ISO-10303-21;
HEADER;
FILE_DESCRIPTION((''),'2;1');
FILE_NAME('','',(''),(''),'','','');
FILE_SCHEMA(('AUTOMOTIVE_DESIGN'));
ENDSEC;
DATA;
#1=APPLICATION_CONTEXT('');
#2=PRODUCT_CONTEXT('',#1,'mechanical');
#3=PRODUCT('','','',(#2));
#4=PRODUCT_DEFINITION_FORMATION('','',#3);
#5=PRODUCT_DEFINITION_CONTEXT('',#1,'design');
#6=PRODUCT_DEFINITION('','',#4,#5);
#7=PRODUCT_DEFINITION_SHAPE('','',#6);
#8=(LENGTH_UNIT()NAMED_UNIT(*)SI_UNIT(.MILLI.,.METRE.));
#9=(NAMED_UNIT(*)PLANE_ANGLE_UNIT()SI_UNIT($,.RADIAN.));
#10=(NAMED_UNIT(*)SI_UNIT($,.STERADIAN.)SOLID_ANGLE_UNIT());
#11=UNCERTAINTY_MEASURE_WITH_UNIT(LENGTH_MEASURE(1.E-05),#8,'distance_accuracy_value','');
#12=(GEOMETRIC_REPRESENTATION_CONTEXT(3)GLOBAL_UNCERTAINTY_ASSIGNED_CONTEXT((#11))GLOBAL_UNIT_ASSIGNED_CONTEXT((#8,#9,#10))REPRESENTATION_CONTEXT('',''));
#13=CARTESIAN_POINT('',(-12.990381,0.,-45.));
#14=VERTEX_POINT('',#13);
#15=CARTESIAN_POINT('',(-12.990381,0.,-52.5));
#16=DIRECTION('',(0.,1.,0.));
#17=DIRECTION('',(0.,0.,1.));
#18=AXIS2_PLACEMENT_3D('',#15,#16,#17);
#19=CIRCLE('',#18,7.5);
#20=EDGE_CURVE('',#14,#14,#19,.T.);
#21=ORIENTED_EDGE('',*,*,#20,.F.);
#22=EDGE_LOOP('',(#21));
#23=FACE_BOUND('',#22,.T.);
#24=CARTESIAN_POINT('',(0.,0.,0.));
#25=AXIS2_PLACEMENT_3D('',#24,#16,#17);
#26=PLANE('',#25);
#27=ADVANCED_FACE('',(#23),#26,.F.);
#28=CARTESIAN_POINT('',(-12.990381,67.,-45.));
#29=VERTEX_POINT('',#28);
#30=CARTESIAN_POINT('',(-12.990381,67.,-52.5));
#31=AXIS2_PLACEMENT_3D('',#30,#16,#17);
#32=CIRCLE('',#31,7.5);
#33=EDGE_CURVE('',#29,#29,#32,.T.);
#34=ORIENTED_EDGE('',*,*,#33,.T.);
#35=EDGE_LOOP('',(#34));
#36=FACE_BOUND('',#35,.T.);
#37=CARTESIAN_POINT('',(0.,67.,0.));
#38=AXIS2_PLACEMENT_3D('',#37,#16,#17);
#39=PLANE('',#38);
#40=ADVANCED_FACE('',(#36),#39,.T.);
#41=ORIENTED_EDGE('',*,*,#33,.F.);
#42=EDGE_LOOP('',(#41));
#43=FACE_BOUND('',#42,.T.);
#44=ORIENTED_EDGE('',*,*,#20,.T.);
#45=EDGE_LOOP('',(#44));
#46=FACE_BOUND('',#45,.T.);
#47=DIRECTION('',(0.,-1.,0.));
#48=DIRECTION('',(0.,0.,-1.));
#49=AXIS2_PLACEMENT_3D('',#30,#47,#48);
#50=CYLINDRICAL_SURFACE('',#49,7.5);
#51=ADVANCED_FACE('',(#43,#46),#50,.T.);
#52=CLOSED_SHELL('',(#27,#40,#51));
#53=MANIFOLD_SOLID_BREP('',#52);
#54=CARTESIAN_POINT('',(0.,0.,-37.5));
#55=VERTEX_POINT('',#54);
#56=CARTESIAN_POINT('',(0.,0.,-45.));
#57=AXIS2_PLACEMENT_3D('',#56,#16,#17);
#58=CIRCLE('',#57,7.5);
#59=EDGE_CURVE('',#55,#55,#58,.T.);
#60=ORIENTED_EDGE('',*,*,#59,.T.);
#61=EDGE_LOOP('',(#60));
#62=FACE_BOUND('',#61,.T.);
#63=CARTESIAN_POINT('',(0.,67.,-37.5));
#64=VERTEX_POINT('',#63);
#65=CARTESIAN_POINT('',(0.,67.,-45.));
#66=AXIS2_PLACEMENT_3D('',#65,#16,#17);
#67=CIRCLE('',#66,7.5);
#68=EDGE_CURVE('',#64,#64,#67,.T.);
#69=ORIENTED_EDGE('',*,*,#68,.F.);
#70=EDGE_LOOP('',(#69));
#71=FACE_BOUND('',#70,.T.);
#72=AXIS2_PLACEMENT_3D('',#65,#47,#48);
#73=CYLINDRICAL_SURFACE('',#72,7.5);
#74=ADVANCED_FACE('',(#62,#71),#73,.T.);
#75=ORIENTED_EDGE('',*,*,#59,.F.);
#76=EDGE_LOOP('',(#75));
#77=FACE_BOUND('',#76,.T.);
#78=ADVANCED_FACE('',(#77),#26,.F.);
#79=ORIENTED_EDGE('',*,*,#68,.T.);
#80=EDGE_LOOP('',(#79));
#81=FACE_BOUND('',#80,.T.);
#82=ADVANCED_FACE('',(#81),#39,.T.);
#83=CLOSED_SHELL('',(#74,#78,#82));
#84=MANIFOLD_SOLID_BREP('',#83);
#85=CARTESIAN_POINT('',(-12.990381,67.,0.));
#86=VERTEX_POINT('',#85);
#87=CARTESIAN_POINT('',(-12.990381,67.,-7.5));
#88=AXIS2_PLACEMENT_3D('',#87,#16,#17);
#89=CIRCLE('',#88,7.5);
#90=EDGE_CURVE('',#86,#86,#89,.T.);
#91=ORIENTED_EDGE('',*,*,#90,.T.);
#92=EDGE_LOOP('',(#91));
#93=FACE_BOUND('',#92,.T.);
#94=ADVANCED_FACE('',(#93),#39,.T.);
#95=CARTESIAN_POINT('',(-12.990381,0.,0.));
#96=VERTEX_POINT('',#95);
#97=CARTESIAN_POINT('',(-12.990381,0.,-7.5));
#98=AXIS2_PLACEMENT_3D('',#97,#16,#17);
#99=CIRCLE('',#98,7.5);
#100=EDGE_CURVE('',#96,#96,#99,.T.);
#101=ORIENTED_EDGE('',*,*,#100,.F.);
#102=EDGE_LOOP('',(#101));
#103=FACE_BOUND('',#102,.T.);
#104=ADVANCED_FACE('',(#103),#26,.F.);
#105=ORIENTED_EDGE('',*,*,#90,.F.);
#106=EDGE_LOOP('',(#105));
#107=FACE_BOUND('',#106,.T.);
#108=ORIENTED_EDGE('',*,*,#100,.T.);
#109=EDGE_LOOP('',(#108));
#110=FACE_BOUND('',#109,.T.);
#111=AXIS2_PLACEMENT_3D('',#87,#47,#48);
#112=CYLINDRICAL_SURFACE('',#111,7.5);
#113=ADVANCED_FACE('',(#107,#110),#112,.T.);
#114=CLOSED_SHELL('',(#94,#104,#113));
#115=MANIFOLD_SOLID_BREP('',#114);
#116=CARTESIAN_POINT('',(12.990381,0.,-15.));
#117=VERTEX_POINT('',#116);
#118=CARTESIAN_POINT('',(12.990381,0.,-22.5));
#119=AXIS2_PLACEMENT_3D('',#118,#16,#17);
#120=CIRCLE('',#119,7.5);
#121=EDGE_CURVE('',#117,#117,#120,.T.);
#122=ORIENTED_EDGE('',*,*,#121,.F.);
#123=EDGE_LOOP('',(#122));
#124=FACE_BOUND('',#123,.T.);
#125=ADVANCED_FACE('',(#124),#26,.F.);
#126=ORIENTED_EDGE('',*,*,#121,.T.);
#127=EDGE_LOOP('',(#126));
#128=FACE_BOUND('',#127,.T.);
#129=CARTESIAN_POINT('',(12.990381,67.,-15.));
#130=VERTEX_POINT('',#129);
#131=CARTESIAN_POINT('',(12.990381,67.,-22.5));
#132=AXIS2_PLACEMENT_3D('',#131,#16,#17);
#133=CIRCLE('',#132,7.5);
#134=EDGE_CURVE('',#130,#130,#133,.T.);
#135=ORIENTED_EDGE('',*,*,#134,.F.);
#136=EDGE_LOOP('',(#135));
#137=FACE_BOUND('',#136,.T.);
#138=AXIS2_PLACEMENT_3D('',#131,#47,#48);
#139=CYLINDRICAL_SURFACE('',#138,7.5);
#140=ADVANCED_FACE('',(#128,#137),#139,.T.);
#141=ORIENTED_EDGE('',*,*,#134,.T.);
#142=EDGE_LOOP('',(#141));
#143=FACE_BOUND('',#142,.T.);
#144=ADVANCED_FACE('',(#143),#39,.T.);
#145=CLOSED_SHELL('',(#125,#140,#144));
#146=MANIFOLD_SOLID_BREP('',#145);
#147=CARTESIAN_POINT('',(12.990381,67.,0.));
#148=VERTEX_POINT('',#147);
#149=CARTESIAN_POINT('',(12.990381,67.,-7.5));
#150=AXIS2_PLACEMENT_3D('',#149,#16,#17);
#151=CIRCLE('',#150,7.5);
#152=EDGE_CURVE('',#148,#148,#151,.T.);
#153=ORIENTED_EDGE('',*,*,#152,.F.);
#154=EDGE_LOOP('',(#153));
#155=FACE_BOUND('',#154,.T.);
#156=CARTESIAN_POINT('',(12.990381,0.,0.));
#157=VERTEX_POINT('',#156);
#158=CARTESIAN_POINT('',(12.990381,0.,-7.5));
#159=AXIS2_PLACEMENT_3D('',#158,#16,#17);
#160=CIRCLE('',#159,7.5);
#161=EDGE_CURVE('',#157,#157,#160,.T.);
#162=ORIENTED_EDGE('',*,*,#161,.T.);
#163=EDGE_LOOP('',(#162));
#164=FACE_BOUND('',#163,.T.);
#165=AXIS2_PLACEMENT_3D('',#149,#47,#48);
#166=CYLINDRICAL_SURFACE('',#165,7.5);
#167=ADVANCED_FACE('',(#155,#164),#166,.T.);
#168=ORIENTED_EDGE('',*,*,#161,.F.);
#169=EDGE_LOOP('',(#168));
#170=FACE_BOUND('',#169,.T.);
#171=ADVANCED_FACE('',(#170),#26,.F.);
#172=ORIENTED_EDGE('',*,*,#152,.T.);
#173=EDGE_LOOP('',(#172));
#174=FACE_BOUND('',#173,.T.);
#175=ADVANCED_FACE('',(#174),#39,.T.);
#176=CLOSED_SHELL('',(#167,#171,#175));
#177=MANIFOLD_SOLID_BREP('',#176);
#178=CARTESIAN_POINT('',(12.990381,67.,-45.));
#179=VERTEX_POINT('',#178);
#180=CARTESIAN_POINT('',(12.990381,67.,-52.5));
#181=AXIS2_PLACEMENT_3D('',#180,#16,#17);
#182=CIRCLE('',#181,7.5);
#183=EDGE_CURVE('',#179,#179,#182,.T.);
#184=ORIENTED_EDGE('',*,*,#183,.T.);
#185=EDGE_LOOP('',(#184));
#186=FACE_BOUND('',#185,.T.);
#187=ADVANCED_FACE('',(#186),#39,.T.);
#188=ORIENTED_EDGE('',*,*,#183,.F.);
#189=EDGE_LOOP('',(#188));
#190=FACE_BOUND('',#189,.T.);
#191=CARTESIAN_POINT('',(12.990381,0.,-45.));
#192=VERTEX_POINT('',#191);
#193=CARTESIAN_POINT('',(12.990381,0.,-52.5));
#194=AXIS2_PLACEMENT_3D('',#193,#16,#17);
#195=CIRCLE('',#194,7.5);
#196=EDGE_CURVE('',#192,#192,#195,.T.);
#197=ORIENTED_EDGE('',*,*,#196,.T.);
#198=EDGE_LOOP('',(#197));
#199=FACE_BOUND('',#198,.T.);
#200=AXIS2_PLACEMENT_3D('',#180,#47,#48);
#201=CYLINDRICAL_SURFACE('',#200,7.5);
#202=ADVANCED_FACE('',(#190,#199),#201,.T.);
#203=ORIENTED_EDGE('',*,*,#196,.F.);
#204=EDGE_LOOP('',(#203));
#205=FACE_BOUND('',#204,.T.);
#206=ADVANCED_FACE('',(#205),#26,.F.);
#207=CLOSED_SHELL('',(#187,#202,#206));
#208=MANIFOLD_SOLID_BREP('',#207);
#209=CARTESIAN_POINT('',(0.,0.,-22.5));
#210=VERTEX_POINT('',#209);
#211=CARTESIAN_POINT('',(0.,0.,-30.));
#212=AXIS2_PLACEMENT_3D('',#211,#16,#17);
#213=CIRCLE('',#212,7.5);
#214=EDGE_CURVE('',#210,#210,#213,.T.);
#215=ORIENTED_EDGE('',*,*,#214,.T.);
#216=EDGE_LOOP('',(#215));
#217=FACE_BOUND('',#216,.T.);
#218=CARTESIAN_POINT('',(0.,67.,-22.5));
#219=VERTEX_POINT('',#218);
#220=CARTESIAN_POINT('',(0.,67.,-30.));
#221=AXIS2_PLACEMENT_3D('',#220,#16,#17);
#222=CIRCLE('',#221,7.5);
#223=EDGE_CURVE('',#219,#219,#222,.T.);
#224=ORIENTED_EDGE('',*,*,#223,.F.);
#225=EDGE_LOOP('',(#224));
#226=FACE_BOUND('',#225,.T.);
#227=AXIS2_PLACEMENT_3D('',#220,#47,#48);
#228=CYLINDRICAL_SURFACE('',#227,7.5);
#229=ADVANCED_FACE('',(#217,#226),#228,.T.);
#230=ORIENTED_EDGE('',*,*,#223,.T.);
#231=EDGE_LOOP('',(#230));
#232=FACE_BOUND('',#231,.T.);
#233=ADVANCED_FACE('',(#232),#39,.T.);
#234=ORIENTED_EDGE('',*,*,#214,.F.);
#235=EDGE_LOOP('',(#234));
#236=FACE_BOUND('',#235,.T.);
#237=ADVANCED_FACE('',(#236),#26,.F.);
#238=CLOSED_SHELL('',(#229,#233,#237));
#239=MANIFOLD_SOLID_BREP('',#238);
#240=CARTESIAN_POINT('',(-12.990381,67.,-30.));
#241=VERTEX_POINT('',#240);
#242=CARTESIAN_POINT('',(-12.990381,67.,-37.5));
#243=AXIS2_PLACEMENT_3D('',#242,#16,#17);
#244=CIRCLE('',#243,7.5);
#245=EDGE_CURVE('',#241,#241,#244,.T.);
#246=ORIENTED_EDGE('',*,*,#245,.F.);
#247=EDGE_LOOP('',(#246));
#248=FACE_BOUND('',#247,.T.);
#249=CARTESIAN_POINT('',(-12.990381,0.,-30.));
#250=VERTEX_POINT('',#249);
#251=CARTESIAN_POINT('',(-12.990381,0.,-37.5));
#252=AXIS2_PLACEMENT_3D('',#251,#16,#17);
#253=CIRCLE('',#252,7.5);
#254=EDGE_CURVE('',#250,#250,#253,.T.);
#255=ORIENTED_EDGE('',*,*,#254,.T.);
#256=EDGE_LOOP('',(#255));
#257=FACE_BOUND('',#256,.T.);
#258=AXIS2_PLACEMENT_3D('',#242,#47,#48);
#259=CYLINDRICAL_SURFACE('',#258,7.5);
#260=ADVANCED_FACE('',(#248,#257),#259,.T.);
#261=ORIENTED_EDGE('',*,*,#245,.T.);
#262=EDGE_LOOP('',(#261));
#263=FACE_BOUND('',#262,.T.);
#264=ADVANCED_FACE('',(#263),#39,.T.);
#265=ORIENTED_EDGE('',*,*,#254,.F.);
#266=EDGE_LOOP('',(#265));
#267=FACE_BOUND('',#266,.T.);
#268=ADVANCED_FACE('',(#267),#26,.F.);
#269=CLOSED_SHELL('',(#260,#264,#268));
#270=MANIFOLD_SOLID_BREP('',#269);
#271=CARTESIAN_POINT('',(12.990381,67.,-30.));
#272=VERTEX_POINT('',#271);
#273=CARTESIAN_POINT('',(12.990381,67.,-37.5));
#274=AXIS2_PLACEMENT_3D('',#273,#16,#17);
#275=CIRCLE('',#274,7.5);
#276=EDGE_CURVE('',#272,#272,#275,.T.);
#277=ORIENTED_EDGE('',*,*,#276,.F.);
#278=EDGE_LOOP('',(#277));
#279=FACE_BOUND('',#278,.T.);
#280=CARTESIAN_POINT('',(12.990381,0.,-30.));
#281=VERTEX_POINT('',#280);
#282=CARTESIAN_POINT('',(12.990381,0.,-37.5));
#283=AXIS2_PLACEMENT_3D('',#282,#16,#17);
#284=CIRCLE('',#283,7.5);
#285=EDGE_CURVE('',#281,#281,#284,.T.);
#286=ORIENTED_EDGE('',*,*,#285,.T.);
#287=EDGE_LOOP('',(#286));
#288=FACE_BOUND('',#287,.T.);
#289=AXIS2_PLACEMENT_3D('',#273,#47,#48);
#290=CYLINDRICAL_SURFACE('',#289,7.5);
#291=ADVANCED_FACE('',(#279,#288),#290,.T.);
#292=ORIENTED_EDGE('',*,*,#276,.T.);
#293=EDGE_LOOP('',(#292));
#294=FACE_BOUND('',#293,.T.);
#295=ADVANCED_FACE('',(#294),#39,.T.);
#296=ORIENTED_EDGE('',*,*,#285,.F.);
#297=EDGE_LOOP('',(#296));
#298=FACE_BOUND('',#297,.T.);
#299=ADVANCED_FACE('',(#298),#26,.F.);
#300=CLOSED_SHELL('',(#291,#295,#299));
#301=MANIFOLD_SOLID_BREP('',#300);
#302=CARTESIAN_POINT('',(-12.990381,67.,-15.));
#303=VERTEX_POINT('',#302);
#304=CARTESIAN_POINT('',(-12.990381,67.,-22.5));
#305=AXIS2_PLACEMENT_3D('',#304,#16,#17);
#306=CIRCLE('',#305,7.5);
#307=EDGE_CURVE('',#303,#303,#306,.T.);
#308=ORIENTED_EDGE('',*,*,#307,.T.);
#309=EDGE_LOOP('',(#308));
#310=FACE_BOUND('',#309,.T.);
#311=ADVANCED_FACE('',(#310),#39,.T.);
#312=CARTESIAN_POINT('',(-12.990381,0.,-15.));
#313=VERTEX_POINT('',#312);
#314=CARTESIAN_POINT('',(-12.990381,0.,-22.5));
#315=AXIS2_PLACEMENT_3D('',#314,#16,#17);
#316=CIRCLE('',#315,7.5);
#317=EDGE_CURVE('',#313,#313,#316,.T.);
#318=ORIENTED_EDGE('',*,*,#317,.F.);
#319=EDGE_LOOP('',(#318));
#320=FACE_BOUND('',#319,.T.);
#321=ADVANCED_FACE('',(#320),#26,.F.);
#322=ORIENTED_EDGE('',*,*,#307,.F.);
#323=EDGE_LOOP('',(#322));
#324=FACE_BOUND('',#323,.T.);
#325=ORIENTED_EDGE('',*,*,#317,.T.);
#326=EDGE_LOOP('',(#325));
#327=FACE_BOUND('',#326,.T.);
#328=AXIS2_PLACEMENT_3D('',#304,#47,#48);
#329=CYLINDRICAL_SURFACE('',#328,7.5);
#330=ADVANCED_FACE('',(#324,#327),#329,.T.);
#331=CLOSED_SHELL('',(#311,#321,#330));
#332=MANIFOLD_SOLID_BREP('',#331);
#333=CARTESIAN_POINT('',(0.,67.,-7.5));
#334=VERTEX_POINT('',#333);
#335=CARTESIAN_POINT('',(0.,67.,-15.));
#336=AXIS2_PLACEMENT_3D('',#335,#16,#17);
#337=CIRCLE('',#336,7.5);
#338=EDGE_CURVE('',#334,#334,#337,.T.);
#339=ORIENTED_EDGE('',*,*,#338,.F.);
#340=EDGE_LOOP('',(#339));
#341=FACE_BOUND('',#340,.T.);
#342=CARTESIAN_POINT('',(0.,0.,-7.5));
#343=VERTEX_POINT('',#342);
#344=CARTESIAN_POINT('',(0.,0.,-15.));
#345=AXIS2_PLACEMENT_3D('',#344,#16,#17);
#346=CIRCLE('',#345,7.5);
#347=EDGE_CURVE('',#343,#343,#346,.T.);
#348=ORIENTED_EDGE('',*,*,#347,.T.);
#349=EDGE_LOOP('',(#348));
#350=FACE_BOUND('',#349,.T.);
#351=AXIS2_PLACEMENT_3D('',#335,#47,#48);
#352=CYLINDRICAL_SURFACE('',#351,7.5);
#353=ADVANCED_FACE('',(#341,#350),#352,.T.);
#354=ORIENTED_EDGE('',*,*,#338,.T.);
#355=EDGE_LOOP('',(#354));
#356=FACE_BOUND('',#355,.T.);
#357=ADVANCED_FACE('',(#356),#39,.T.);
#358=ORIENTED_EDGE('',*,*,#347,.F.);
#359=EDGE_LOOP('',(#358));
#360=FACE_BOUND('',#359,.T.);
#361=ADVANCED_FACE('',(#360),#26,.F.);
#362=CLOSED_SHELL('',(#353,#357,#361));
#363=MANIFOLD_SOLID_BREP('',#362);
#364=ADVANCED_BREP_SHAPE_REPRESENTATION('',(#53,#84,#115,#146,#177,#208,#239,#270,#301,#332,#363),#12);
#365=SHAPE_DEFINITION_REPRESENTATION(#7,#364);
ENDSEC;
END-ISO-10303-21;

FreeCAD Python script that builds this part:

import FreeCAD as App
import Part
import Sketcher

doc = App.newDocument("Part")
body = doc.addObject("PartDesign::Body", "Body")

sketch1 = body.newObject("Sketcher::SketchObject", "Sketch")
sketch1.AttachmentSupport = (doc.getObject("XZ_Plane"), [""])
sketch1.MapMode = "FlatFace"
sketch1.addGeometry(Part.Circle(App.Vector(0, -30, 0), App.Vector(0, 0, 1), 8), False)
sketch1.addConstraint([
    Sketcher.Constraint("PointOnObject", 0, 3, -2),
    Sketcher.Constraint("Diameter", 0, 15.0),
    Sketcher.Constraint("DistanceY", 0, 3, -1, 1, 30.0),
])
pad1 = body.newObject("PartDesign::Pad", "Pad")
pad1.Profile = sketch1
pad1.Length = 67
pad1.Reversed = True
body2 = doc.addObject("PartDesign::Body", "Body001")

sketch2 = body2.newObject("Sketcher::SketchObject", "Sketch001")
sketch2.AttachmentSupport = (doc.getObject("XZ_Plane001"), [""])
sketch2.MapMode = "FlatFace"
sketch2.addGeometry(Part.Circle(App.Vector(0, -45, 0), App.Vector(0, 0, 1), 8), False)
sketch2.addConstraint([
    Sketcher.Constraint("PointOnObject", 0, 3, -2),
    Sketcher.Constraint("Diameter", 0, 15.0),
    Sketcher.Constraint("DistanceY", 0, 3, -1, 1, 45.0),
])
pad2 = body2.newObject("PartDesign::Pad", "Pad001")
pad2.Profile = sketch2
pad2.Length = 67
pad2.Reversed = True
body3 = doc.addObject("PartDesign::Body", "Body002")

sketch3 = body3.newObject("Sketcher::SketchObject", "Sketch002")
sketch3.AttachmentSupport = (doc.getObject("XZ_Plane002"), [""])
sketch3.MapMode = "FlatFace"
sketch3.addGeometry(Part.Circle(App.Vector(0, -15, 0), App.Vector(0, 0, 1), 8), False)
sketch3.addConstraint([
    Sketcher.Constraint("PointOnObject", 0, 3, -2),
    Sketcher.Constraint("Diameter", 0, 15.0),
    Sketcher.Constraint("DistanceY", 0, 3, -1, 1, 15.0),
])
pad3 = body3.newObject("PartDesign::Pad", "Pad002")
pad3.Profile = sketch3
pad3.Length = 67
pad3.Reversed = True
body4 = doc.addObject("PartDesign::Body", "Body003")

sketch4 = body4.newObject("Sketcher::SketchObject", "Sketch003")
sketch4.AttachmentSupport = (doc.getObject("XZ_Plane003"), [""])
sketch4.MapMode = "FlatFace"
sketch4.addGeometry(Part.Circle(App.Vector(-13, -8, 0), App.Vector(0, 0, 1), 8), False)
sketch4.addConstraint([
    Sketcher.Constraint("Diameter", 0, 15.0),
    Sketcher.Constraint("DistanceY", 0, 3, -1, 1, 7.5),
    Sketcher.Constraint("DistanceX", 0, 3, -1, 1, 12.990381),
])
pad4 = body4.newObject("PartDesign::Pad", "Pad003")
pad4.Profile = sketch4
pad4.Length = 67
pad4.Reversed = True
body5 = doc.addObject("PartDesign::Body", "Body004")

sketch5 = body5.newObject("Sketcher::SketchObject", "Sketch004")
sketch5.AttachmentSupport = (doc.getObject("XZ_Plane004"), [""])
sketch5.MapMode = "FlatFace"
sketch5.addGeometry(Part.Circle(App.Vector(-13, -22, 0), App.Vector(0, 0, 1), 8), False)
sketch5.addConstraint([
    Sketcher.Constraint("Diameter", 0, 15.0),
    Sketcher.Constraint("DistanceY", 0, 3, -1, 1, 22.5),
    Sketcher.Constraint("DistanceX", 0, 3, -1, 1, 12.990381),
])
pad5 = body5.newObject("PartDesign::Pad", "Pad004")
pad5.Profile = sketch5
pad5.Length = 67
pad5.Reversed = True
body6 = doc.addObject("PartDesign::Body", "Body005")

sketch6 = body6.newObject("Sketcher::SketchObject", "Sketch005")
sketch6.AttachmentSupport = (doc.getObject("XZ_Plane005"), [""])
sketch6.MapMode = "FlatFace"
sketch6.addGeometry(Part.Circle(App.Vector(-13, -38, 0), App.Vector(0, 0, 1), 8), False)
sketch6.addConstraint([
    Sketcher.Constraint("Diameter", 0, 15.0),
    Sketcher.Constraint("DistanceY", 0, 3, -1, 1, 37.5),
    Sketcher.Constraint("DistanceX", 0, 3, -1, 1, 12.990381),
])
pad6 = body6.newObject("PartDesign::Pad", "Pad005")
pad6.Profile = sketch6
pad6.Length = 67
pad6.Reversed = True
body7 = doc.addObject("PartDesign::Body", "Body006")

sketch7 = body7.newObject("Sketcher::SketchObject", "Sketch006")
sketch7.AttachmentSupport = (doc.getObject("XZ_Plane006"), [""])
sketch7.MapMode = "FlatFace"
sketch7.addGeometry(Part.Circle(App.Vector(-13, -52, 0), App.Vector(0, 0, 1), 8), False)
sketch7.addConstraint([
    Sketcher.Constraint("Diameter", 0, 15.0),
    Sketcher.Constraint("DistanceY", 0, 3, -1, 1, 52.5),
    Sketcher.Constraint("DistanceX", 0, 3, -1, 1, 12.990381),
])
pad7 = body7.newObject("PartDesign::Pad", "Pad006")
pad7.Profile = sketch7
pad7.Length = 67
pad7.Reversed = True
body8 = doc.addObject("PartDesign::Body", "Body007")

sketch8 = body8.newObject("Sketcher::SketchObject", "Sketch007")
sketch8.AttachmentSupport = (doc.getObject("XZ_Plane007"), [""])
sketch8.MapMode = "FlatFace"
sketch8.addGeometry(Part.Circle(App.Vector(13, -8, 0), App.Vector(0, 0, 1), 8), False)
sketch8.addConstraint([
    Sketcher.Constraint("Diameter", 0, 15.0),
    Sketcher.Constraint("DistanceY", 0, 3, -1, 1, 7.5),
    Sketcher.Constraint("DistanceX", -1, 1, 0, 3, 12.990381),
])
pad8 = body8.newObject("PartDesign::Pad", "Pad007")
pad8.Profile = sketch8
pad8.Length = 67
pad8.Reversed = True
body9 = doc.addObject("PartDesign::Body", "Body008")

sketch9 = body9.newObject("Sketcher::SketchObject", "Sketch008")
sketch9.AttachmentSupport = (doc.getObject("XZ_Plane008"), [""])
sketch9.MapMode = "FlatFace"
sketch9.addGeometry(Part.Circle(App.Vector(13, -22, 0), App.Vector(0, 0, 1), 8), False)
sketch9.addConstraint([
    Sketcher.Constraint("Diameter", 0, 15.0),
    Sketcher.Constraint("DistanceY", 0, 3, -1, 1, 22.5),
    Sketcher.Constraint("DistanceX", -1, 1, 0, 3, 12.990381),
])
pad9 = body9.newObject("PartDesign::Pad", "Pad008")
pad9.Profile = sketch9
pad9.Length = 67
pad9.Reversed = True
body10 = doc.addObject("PartDesign::Body", "Body009")

sketch10 = body10.newObject("Sketcher::SketchObject", "Sketch009")
sketch10.AttachmentSupport = (doc.getObject("XZ_Plane009"), [""])
sketch10.MapMode = "FlatFace"
sketch10.addGeometry(Part.Circle(App.Vector(13, -38, 0), App.Vector(0, 0, 1), 8), False)
sketch10.addConstraint([
    Sketcher.Constraint("Diameter", 0, 15.0),
    Sketcher.Constraint("DistanceY", 0, 3, -1, 1, 37.5),
    Sketcher.Constraint("DistanceX", -1, 1, 0, 3, 12.990381),
])
pad10 = body10.newObject("PartDesign::Pad", "Pad009")
pad10.Profile = sketch10
pad10.Length = 67
pad10.Reversed = True
body11 = doc.addObject("PartDesign::Body", "Body010")

sketch11 = body11.newObject("Sketcher::SketchObject", "Sketch010")
sketch11.AttachmentSupport = (doc.getObject("XZ_Plane010"), [""])
sketch11.MapMode = "FlatFace"
sketch11.addGeometry(Part.Circle(App.Vector(13, -52, 0), App.Vector(0, 0, 1), 8), False)
sketch11.addConstraint([
    Sketcher.Constraint("Diameter", 0, 15.0),
    Sketcher.Constraint("DistanceY", 0, 3, -1, 1, 52.5),
    Sketcher.Constraint("DistanceX", -1, 1, 0, 3, 12.990381),
])
pad11 = body11.newObject("PartDesign::Pad", "Pad010")
pad11.Profile = sketch11
pad11.Length = 67
pad11.Reversed = True

doc.recompute()
